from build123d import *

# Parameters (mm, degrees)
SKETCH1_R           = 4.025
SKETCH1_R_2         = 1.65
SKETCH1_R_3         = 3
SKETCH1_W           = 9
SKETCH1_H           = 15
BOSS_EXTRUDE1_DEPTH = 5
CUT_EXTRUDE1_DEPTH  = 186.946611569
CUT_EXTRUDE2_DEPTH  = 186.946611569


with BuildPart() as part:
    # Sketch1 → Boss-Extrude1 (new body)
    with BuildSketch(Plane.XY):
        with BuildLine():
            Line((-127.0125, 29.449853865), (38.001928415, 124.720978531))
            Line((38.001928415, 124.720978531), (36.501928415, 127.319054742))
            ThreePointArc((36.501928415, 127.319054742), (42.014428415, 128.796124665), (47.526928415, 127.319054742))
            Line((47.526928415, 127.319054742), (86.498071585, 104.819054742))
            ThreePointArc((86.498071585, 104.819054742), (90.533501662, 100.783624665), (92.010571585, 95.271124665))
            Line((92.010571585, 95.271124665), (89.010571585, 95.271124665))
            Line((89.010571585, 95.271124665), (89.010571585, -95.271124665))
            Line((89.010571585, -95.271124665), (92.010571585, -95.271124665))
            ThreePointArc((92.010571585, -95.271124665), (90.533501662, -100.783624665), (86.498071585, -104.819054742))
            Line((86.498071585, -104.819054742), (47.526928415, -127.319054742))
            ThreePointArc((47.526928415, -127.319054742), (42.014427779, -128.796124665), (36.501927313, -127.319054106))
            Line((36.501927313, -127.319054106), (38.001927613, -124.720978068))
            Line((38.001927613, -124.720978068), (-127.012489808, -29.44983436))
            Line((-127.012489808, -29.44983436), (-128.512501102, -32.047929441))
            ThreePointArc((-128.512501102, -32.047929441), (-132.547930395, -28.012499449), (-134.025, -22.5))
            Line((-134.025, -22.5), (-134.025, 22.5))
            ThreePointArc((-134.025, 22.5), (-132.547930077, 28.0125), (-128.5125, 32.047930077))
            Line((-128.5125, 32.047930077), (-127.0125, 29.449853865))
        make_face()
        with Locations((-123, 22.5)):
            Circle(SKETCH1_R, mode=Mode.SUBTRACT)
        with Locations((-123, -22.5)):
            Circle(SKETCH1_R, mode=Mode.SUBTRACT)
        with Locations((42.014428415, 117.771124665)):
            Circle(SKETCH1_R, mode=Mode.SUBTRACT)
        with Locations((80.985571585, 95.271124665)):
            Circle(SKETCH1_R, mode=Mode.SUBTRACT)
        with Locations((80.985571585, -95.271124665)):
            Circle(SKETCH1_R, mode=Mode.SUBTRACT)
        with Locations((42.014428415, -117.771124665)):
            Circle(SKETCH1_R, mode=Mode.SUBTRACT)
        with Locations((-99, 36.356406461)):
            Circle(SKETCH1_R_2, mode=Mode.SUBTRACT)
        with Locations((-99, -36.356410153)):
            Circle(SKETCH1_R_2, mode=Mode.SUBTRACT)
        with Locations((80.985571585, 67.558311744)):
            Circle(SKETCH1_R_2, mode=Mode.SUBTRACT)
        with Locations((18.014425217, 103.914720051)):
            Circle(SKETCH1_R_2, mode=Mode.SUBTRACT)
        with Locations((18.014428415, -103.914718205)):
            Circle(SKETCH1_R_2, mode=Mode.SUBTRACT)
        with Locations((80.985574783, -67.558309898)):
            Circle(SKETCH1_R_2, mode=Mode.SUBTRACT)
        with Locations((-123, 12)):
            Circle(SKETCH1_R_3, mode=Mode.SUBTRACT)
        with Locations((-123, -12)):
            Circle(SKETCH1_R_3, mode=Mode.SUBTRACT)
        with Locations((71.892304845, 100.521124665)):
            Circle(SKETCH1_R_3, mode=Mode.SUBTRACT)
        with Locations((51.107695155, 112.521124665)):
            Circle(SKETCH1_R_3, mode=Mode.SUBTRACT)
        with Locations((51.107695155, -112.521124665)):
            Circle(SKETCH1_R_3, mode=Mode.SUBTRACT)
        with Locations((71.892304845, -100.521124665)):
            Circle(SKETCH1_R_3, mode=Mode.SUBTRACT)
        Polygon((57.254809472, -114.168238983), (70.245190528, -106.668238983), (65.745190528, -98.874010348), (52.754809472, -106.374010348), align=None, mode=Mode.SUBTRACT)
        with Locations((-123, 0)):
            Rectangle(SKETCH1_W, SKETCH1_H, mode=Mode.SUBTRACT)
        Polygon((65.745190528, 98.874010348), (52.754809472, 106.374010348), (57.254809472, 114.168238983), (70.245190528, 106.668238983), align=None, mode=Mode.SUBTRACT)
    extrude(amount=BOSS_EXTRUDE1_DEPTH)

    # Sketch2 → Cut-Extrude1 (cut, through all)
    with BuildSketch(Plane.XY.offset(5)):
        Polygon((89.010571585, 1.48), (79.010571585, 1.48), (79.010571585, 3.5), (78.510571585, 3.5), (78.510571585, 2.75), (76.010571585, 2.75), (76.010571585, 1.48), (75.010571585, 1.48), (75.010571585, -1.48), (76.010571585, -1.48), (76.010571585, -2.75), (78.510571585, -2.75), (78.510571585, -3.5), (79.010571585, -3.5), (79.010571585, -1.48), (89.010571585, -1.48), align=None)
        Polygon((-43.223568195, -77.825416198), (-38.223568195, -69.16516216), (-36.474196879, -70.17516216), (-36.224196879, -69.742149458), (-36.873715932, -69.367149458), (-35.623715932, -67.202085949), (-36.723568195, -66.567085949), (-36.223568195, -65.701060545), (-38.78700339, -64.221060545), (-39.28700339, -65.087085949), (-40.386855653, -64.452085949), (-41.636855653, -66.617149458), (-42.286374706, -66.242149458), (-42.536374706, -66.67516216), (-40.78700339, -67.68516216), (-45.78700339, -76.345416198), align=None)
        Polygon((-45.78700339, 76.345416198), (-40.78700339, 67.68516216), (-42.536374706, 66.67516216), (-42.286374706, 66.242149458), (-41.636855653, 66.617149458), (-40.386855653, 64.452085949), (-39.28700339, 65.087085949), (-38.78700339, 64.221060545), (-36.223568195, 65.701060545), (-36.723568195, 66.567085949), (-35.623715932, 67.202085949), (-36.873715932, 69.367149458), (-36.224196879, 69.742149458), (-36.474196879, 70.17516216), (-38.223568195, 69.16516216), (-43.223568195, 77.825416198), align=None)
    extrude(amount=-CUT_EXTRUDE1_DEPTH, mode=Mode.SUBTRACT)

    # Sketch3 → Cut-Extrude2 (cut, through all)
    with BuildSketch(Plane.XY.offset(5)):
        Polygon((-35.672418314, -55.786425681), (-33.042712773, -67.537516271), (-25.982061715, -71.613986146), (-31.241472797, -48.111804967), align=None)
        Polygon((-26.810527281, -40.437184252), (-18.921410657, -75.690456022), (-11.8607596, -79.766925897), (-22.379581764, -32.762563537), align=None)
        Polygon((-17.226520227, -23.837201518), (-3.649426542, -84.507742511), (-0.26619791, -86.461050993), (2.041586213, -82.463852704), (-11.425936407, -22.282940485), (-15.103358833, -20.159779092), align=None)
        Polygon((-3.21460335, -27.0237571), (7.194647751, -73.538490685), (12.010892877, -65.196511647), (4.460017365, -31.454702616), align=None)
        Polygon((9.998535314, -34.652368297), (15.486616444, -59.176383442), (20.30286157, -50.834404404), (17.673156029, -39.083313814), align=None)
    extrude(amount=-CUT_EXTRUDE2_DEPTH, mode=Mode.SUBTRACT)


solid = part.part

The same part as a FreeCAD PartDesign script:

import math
import FreeCAD as App
import Part
import Sketcher

V = App.Vector
Q = App.Units.Quantity

doc = App.newDocument("Part")
body = doc.addObject("PartDesign::Body", "Body")

# Sketch on XY plane
sketch1 = body.newObject("Sketcher::SketchObject", "Sketch")
sketch1.AttachmentSupport = (doc.getObject("XY_Plane"), [""])
sketch1.MapMode = "FlatFace"
sketch1.addGeometry([
    Part.LineSegment(V(38.001928, 124.720979, 0), V(-127.0125, 29.449854, 0)),  # 0
    Part.LineSegment(V(-127.0125, 29.449854, 0), V(-128.5125, 32.04793, 0)),  # 1
    Part.ArcOfCircle(Part.Circle(V(-123, 22.5, 0), V(0, 0, 1), 11.025), math.radians(120), math.radians(180)),  # 2
    Part.LineSegment(V(-134.025, 22.5, 0), V(-134.025, -22.5, 0)),  # 3
    Part.ArcOfCircle(Part.Circle(V(-123, -22.5, 0), V(0, 0, 1), 11.025), math.radians(180), math.radians(239.999993)),  # 4
    Part.LineSegment(V(-128.512501, -32.047929, 0), V(-127.01249, -29.449834, 0)),  # 5
    Part.LineSegment(V(-127.01249, -29.449834, 0), V(38.001928, -124.720978, 0)),  # 6
    Part.LineSegment(V(38.001928, -124.720978, 0), V(36.501927, -127.319054, 0)),  # 7
    Part.ArcOfCircle(Part.Circle(V(42.014428, -117.771125, 0), V(0, 0, 1), 11.025), math.radians(-120.000007), math.radians(-60)),  # 8
    Part.LineSegment(V(47.526928, -127.319055, 0), V(86.498072, -104.819055, 0)),  # 9
    Part.ArcOfCircle(Part.Circle(V(80.985572, -95.271125, 0), V(0, 0, 1), 11.025), math.radians(-60), math.radians(0)),  # 10
    Part.LineSegment(V(92.010572, -95.271125, 0), V(89.010572, -95.271125, 0)),  # 11
    Part.LineSegment(V(89.010572, -95.271125, 0), V(89.010572, 95.271125, 0)),  # 12
    Part.LineSegment(V(89.010572, 95.271125, 0), V(92.010572, 95.271125, 0)),  # 13
    Part.ArcOfCircle(Part.Circle(V(80.985572, 95.271125, 0), V(0, 0, 1), 11.025), math.radians(0), math.radians(60)),  # 14
    Part.LineSegment(V(86.498072, 104.819055, 0), V(47.526928, 127.319055, 0)),  # 15
    Part.ArcOfCircle(Part.Circle(V(42.014428, 117.771125, 0), V(0, 0, 1), 11.025), math.radians(60), math.radians(120)),  # 16
    Part.LineSegment(V(36.501928, 127.319055, 0), V(38.001928, 124.720979, 0)),  # 17
    Part.Circle(V(71.892305, -100.521125, 0), V(0, 0, 1), 3),  # 18
    Part.Circle(V(80.985572, -95.271125, 0), V(0, 0, 1), 4.025),  # 19
    Part.LineSegment(V(57.254809, -114.168239, 0), V(52.754809, -106.37401, 0)),  # 20
    Part.LineSegment(V(52.754809, -106.37401, 0), V(65.745191, -98.87401, 0)),  # 21
    Part.LineSegment(V(65.745191, -98.87401, 0), V(70.245191, -106.668239, 0)),  # 22
    Part.LineSegment(V(70.245191, -106.668239, 0), V(57.254809, -114.168239, 0)),  # 23
    Part.Circle(V(51.107695, -112.521125, 0), V(0, 0, 1), 3),  # 24
    Part.Circle(V(42.014428, -117.771125, 0), V(0, 0, 1), 4.025),  # 25
    Part.Circle(V(80.985575, -67.55831, 0), V(0, 0, 1), 1.65),  # 26
    Part.Circle(V(18.014428, -103.914718, 0), V(0, 0, 1), 1.65),  # 27
    Part.Circle(V(-99, -36.35641, 0), V(0, 0, 1), 1.65),  # 28
    Part.Circle(V(-123, -22.5, 0), V(0, 0, 1), 4.025),  # 29
    Part.Circle(V(-123, -12, 0), V(0, 0, 1), 3),  # 30
    Part.Circle(V(80.985572, 67.558312, 0), V(0, 0, 1), 1.65),  # 31
    Part.Circle(V(80.985572, 95.271125, 0), V(0, 0, 1), 4.025),  # 32
    Part.Circle(V(71.892305, 100.521125, 0), V(0, 0, 1), 3),  # 33
    Part.LineSegment(V(65.745191, 98.87401, 0), V(52.754809, 106.37401, 0)),  # 34
    Part.LineSegment(V(52.754809, 106.37401, 0), V(57.254809, 114.168239, 0)),  # 35
    Part.LineSegment(V(57.254809, 114.168239, 0), V(70.245191, 106.668239, 0)),  # 36
    Part.LineSegment(V(70.245191, 106.668239, 0), V(65.745191, 98.87401, 0)),  # 37
    Part.Circle(V(51.107695, 112.521125, 0), V(0, 0, 1), 3),  # 38
    Part.Circle(V(42.014428, 117.771125, 0), V(0, 0, 1), 4.025),  # 39
    Part.Circle(V(18.014425, 103.91472, 0), V(0, 0, 1), 1.65),  # 40
    Part.LineSegment(V(-127.5, -7.5, 0), V(-127.5, 7.5, 0)),  # 41
    Part.LineSegment(V(-127.5, 7.5, 0), V(-118.5, 7.5, 0)),  # 42
    Part.LineSegment(V(-118.5, 7.5, 0), V(-118.5, -7.5, 0)),  # 43
    Part.LineSegment(V(-118.5, -7.5, 0), V(-127.5, -7.5, 0)),  # 44
    Part.Circle(V(-123, 12, 0), V(0, 0, 1), 3),  # 45
    Part.Circle(V(-123, 22.5, 0), V(0, 0, 1), 4.025),  # 46
    Part.Circle(V(-99, 36.356406, 0), V(0, 0, 1), 1.65),  # 47
], False)
sketch1.addConstraint([
    Sketcher.Constraint("Coincident", 0, 2, 1, 1),
    Sketcher.Constraint("Coincident", 1, 2, 2, 1),
    Sketcher.Constraint("Coincident", 2, 2, 3, 1),
    Sketcher.Constraint("Coincident", 3, 2, 4, 1),
    Sketcher.Constraint("Coincident", 4, 2, 5, 1),
    Sketcher.Constraint("Coincident", 5, 2, 6, 1),
    Sketcher.Constraint("Coincident", 6, 2, 7, 1),
    Sketcher.Constraint("Coincident", 7, 2, 8, 1),
    Sketcher.Constraint("Coincident", 8, 2, 9, 1),
    Sketcher.Constraint("Coincident", 9, 2, 10, 1),
    Sketcher.Constraint("Coincident", 10, 2, 11, 1),
    Sketcher.Constraint("Coincident", 11, 2, 12, 1),
    Sketcher.Constraint("Coincident", 12, 2, 13, 1),
    Sketcher.Constraint("Coincident", 13, 2, 14, 1),
    Sketcher.Constraint("Coincident", 14, 2, 15, 1),
    Sketcher.Constraint("Coincident", 15, 2, 16, 1),
    Sketcher.Constraint("Coincident", 16, 2, 17, 1),
    Sketcher.Constraint("Coincident", 17, 2, 0, 1),
    Sketcher.Constraint("Coincident", 20, 2, 21, 1),
    Sketcher.Constraint("Coincident", 21, 2, 22, 1),
    Sketcher.Constraint("Coincident", 22, 2, 23, 1),
    Sketcher.Constraint("Coincident", 23, 2, 20, 1),
    Sketcher.Constraint("Coincident", 34, 2, 35, 1),
    Sketcher.Constraint("Coincident", 35, 2, 36, 1),
    Sketcher.Constraint("Coincident", 36, 2, 37, 1),
    Sketcher.Constraint("Coincident", 37, 2, 34, 1),
    Sketcher.Constraint("Coincident", 41, 2, 42, 1),
    Sketcher.Constraint("Coincident", 42, 2, 43, 1),
    Sketcher.Constraint("Coincident", 43, 2, 44, 1),
    Sketcher.Constraint("Coincident", 44, 2, 41, 1),
    Sketcher.Constraint("Vertical", 3),
    Sketcher.Constraint("Horizontal", 11),
    Sketcher.Constraint("Vertical", 12),
    Sketcher.Constraint("Horizontal", 13),
    Sketcher.Constraint("Vertical", 41),
    Sketcher.Constraint("Horizontal", 42),
    Sketcher.Constraint("Vertical", 43),
    Sketcher.Constraint("Horizontal", 44),
    Sketcher.Constraint("Coincident", 19, 3, 10, 3),
    Sketcher.Constraint("Coincident", 25, 3, 8, 3),
    Sketcher.Constraint("Coincident", 29, 3, 4, 3),
    Sketcher.Constraint("Coincident", 32, 3, 14, 3),
    Sketcher.Constraint("Coincident", 39, 3, 16, 3),
    Sketcher.Constraint("Coincident", 46, 3, 2, 3),
    Sketcher.Constraint("Diameter", 18, 6.0),
    Sketcher.Constraint("Diameter", 24, 6.0),
    Sketcher.Constraint("Diameter", 30, 6.0),
    Sketcher.Constraint("Diameter", 33, 6.0),
    Sketcher.Constraint("Diameter", 38, 6.0),
    Sketcher.Constraint("Diameter", 45, 6.0),
    Sketcher.Constraint("Diameter", 26, 3.3),
    Sketcher.Constraint("Diameter", 27, 3.3),
    Sketcher.Constraint("Diameter", 28, 3.3),
    Sketcher.Constraint("Diameter", 31, 3.3),
    Sketcher.Constraint("Diameter", 40, 3.3),
    Sketcher.Constraint("Diameter", 47, 3.3),
    Sketcher.Constraint("Diameter", 19, 8.05),
    Sketcher.Constraint("Diameter", 25, 8.05),
    Sketcher.Constraint("Diameter", 29, 8.05),
    Sketcher.Constraint("Diameter", 32, 8.05),
    Sketcher.Constraint("Diameter", 39, 8.05),
    Sketcher.Constraint("Diameter", 46, 8.05),
    Sketcher.Constraint("DistanceX", 11, 2, 11, 1, 3.0),
    Sketcher.Constraint("DistanceX", 13, 1, 13, 2, 3.0),
    Sketcher.Constraint("DistanceX", 42, 1, 42, 2, 9.0),
    Sketcher.Constraint("DistanceY", 3, 2, 3, 1, 45.0),
    Sketcher.Constraint("DistanceY", 41, 1, 41, 2, 15.0),
    Sketcher.Constraint("Distance", 1, 3.0),
    Sketcher.Constraint("Distance", 7, 3.0),
    Sketcher.Constraint("Distance", 9, 45.0),
    Sketcher.Constraint("Distance", 15, 45.0),
    Sketcher.Constraint("Distance", 17, 3.0),
    Sketcher.Constraint("Distance", 20, 9.0),
    Sketcher.Constraint("Distance", 21, 15.0),
    Sketcher.Constraint("Distance", 22, 9.0),
    Sketcher.Constraint("Distance", 23, 15.0),
    Sketcher.Constraint("Distance", 34, 15.0),
    Sketcher.Constraint("Distance", 35, 9.0),
    Sketcher.Constraint("Distance", 36, 15.0),
    Sketcher.Constraint("Distance", 37, 9.0),
    Sketcher.Constraint("DistanceX", 2, 3, -1, 1, 123.0),
    Sketcher.Constraint("DistanceX", 4, 3, -1, 1, 123.0),
    Sketcher.Constraint("DistanceX", 28, 3, -1, 1, 99.0),
    Sketcher.Constraint("DistanceX", 30, 3, -1, 1, 123.0),
    Sketcher.Constraint("DistanceY", 30, 3, -1, 1, 12.0),
    Sketcher.Constraint("DistanceX", 45, 3, -1, 1, 123.0),
    Sketcher.Constraint("DistanceY", -1, 1, 45, 3, 12.0),
    Sketcher.Constraint("DistanceX", 47, 3, -1, 1, 99.0),
    Sketcher.Constraint("Radius", 2, 11.025),
    Sketcher.Constraint("Radius", 8, 11.025),
    Sketcher.Constraint("Radius", 10, 11.025),
    Sketcher.Constraint("Radius", 14, 11.025),
    Sketcher.Constraint("Radius", 16, 11.025),
    Sketcher.Constraint("DistanceY", 4, 3, 2, 3, 45.0),
    Sketcher.Constraint("DistanceY", 24, 3, 18, 3, 12.0),
    Sketcher.Constraint("DistanceX", 27, 3, 8, 3, 24.0),
    Sketcher.Constraint("DistanceY", 33, 3, 38, 3, 12.0),
    Sketcher.Constraint("DistanceY", 41, 2, 46, 3, 15.0),
    Sketcher.Constraint("DistanceY", 41, 2, 2, 2, 15.0),
    Sketcher.Constraint("DistanceY", -1, 1, 2, 3, 22.5),
    Sketcher.Constraint("DistanceX", 41, 2, -1, 1, 127.5),
    Sketcher.Constraint("DistanceY", 8, 3, 10, 3, 22.5),
    Sketcher.Constraint("DistanceY", 14, 3, 16, 3, 22.5),
    Sketcher.Constraint("DistanceX", 1, 2, 0, 2, 1.5),
    Sketcher.Constraint("DistanceX", 7, 2, 6, 2, 1.5),
    Sketcher.Constraint("DistanceX", 16, 2, 17, 2, 1.5),
    Sketcher.Constraint("DistanceY", 20, 2, 21, 2, 7.5),
    Sketcher.Constraint("DistanceX", 21, 2, 22, 2, 4.5),
    Sketcher.Constraint("DistanceX", 34, 2, 35, 2, 4.5),
    Sketcher.Constraint("DistanceY", 36, 2, 35, 2, 7.5),
    Sketcher.Constraint("DistanceY", 18, 3, 10, 3, 5.25),
    Sketcher.Constraint("DistanceY", 32, 3, 33, 3, 5.25),
    Sketcher.Constraint("DistanceY", 18, 3, 10, 2, 5.25),
    Sketcher.Constraint("DistanceY", 12, 2, 33, 3, 5.25),
    Sketcher.Constraint("DistanceX", 6, 2, 8, 2, 9.525001),
    Sketcher.Constraint("DistanceX", 31, 3, 12, 2, 8.025),
    Sketcher.Constraint("DistanceX", 16, 2, 15, 2, 11.025),
    Sketcher.Constraint("DistanceY", 12, 1, 12, 2, 190.542249),
    Sketcher.Constraint("DistanceX", 0, 2, -1, 1, 127.0125),
    Sketcher.Constraint("DistanceX", 4, 2, -1, 1, 128.512501),
    Sketcher.Constraint("DistanceX", 6, 2, 25, 3, 4.012501),
    Sketcher.Constraint("DistanceX", 10, 3, 9, 2, 5.5125),
    Sketcher.Constraint("DistanceX", 14, 2, 12, 2, 2.5125),
    Sketcher.Constraint("DistanceX", 39, 3, 15, 2, 5.5125),
    Sketcher.Constraint("Distance", 0, 190.542249),
    Sketcher.Constraint("Distance", 5, 3.000022),
    Sketcher.Constraint("Distance", 6, 190.542249),
    Sketcher.Constraint("DistanceX", -1, 1, 8, 3, 42.014428),
    Sketcher.Constraint("DistanceY", 26, 3, -1, 1, 67.55831),
    Sketcher.Constraint("DistanceY", 27, 3, -1, 1, 103.914718),
    Sketcher.Constraint("DistanceY", 28, 3, -1, 1, 36.35641),
    Sketcher.Constraint("DistanceY", -1, 1, 31, 3, 67.558312),
    Sketcher.Constraint("DistanceY", -1, 1, 40, 3, 103.91472),
    Sketcher.Constraint("DistanceX", -1, 1, 20, 2, 52.754809),
    Sketcher.Constraint("DistanceY", 20, 2, -1, 1, 106.37401),
    Sketcher.Constraint("DistanceX", -1, 1, 34, 2, 52.754809),
    Sketcher.Constraint("DistanceY", -1, 1, 34, 2, 106.37401),
    Sketcher.Constraint("DistanceX", 24, 3, 18, 3, 20.78461),
    Sketcher.Constraint("DistanceX", 18, 3, 26, 3, 9.09327),
    Sketcher.Constraint("DistanceX", 33, 3, 26, 3, 9.09327),
    Sketcher.Constraint("DistanceX", 38, 3, 33, 3, 20.78461),
    Sketcher.Constraint("DistanceX", 40, 3, 38, 3, 33.09327),
    Sketcher.Constraint("DistanceX", -1, 1, 18, 3, 71.892305),
    Sketcher.Constraint("DistanceY", -1, 1, 47, 3, 36.356406),
])
pad1 = body.newObject("PartDesign::Pad", "Pad")
pad1.Profile = sketch1
pad1.Length = 5

# Sketch on XY plane
sketch2 = body.newObject("Sketcher::SketchObject", "Sketch001")
sketch2.AttachmentSupport = (doc.getObject("XY_Plane"), [""])
sketch2.MapMode = "FlatFace"
sketch2.AttachmentOffset = App.Placement(V(0, 0, 5), App.Rotation())
sketch2.addGeometry([
    Part.LineSegment(V(89, 1.5, 0), V(79, 1.5, 0)),  # 0
    Part.LineSegment(V(79, 1.5, 0), V(79, 3.5, 0)),  # 1
    Part.LineSegment(V(79, 3.5, 0), V(78.5, 3.5, 0)),  # 2
    Part.LineSegment(V(78.5, 3.5, 0), V(78.5, 2.8, 0)),  # 3
    Part.LineSegment(V(78.5, 2.8, 0), V(76, 2.8, 0)),  # 4
    Part.LineSegment(V(76, 2.8, 0), V(76, 1.5, 0)),  # 5
    Part.LineSegment(V(76, 1.5, 0), V(75, 1.5, 0)),  # 6
    Part.LineSegment(V(75, 1.5, 0), V(75, -1.5, 0)),  # 7
    Part.LineSegment(V(75, -1.5, 0), V(76, -1.5, 0)),  # 8
    Part.LineSegment(V(76, -1.5, 0), V(76, -2.8, 0)),  # 9
    Part.LineSegment(V(76, -2.8, 0), V(78.5, -2.8, 0)),  # 10
    Part.LineSegment(V(78.5, -2.8, 0), V(78.5, -3.5, 0)),  # 11
    Part.LineSegment(V(78.5, -3.5, 0), V(79, -3.5, 0)),  # 12
    Part.LineSegment(V(79, -3.5, 0), V(79, -1.5, 0)),  # 13
    Part.LineSegment(V(79, -1.5, 0), V(89, -1.5, 0)),  # 14
    Part.LineSegment(V(89, -1.5, 0), V(89, 1.5, 0)),  # 15
    Part.LineSegment(V(-43.2, -77.8, 0), V(-38.2, -69.2, 0)),  # 16
    Part.LineSegment(V(-38.2, -69.2, 0), V(-36.5, -70.2, 0)),  # 17
    Part.LineSegment(V(-36.5, -70.2, 0), V(-36.2, -69.7, 0)),  # 18
    Part.LineSegment(V(-36.2, -69.7, 0), V(-36.9, -69.4, 0)),  # 19
    Part.LineSegment(V(-36.9, -69.4, 0), V(-35.6, -67.2, 0)),  # 20
    Part.LineSegment(V(-35.6, -67.2, 0), V(-36.7, -66.6, 0)),  # 21
    Part.LineSegment(V(-36.7, -66.6, 0), V(-36.2, -65.7, 0)),  # 22
    Part.LineSegment(V(-36.2, -65.7, 0), V(-38.8, -64.2, 0)),  # 23
    Part.LineSegment(V(-38.8, -64.2, 0), V(-39.3, -65.1, 0)),  # 24
    Part.LineSegment(V(-39.3, -65.1, 0), V(-40.4, -64.5, 0)),  # 25
    Part.LineSegment(V(-40.4, -64.5, 0), V(-41.6, -66.6, 0)),  # 26
    Part.LineSegment(V(-41.6, -66.6, 0), V(-42.3, -66.2, 0)),  # 27
    Part.LineSegment(V(-42.3, -66.2, 0), V(-42.5, -66.7, 0)),  # 28
    Part.LineSegment(V(-42.5, -66.7, 0), V(-40.8, -67.7, 0)),  # 29
    Part.LineSegment(V(-40.8, -67.7, 0), V(-45.8, -76.3, 0)),  # 30
    Part.LineSegment(V(-45.8, -76.3, 0), V(-43.2, -77.8, 0)),  # 31
    Part.LineSegment(V(-45.8, 76.3, 0), V(-40.8, 67.7, 0)),  # 32
    Part.LineSegment(V(-40.8, 67.7, 0), V(-42.5, 66.7, 0)),  # 33
    Part.LineSegment(V(-42.5, 66.7, 0), V(-42.3, 66.2, 0)),  # 34
    Part.LineSegment(V(-42.3, 66.2, 0), V(-41.6, 66.6, 0)),  # 35
    Part.LineSegment(V(-41.6, 66.6, 0), V(-40.4, 64.5, 0)),  # 36
    Part.LineSegment(V(-40.4, 64.5, 0), V(-39.3, 65.1, 0)),  # 37
    Part.LineSegment(V(-39.3, 65.1, 0), V(-38.8, 64.2, 0)),  # 38
    Part.LineSegment(V(-38.8, 64.2, 0), V(-36.2, 65.7, 0)),  # 39
    Part.LineSegment(V(-36.2, 65.7, 0), V(-36.7, 66.6, 0)),  # 40
    Part.LineSegment(V(-36.7, 66.6, 0), V(-35.6, 67.2, 0)),  # 41
    Part.LineSegment(V(-35.6, 67.2, 0), V(-36.9, 69.4, 0)),  # 42
    Part.LineSegment(V(-36.9, 69.4, 0), V(-36.2, 69.7, 0)),  # 43
    Part.LineSegment(V(-36.2, 69.7, 0), V(-36.5, 70.2, 0)),  # 44
    Part.LineSegment(V(-36.5, 70.2, 0), V(-38.2, 69.2, 0)),  # 45
    Part.LineSegment(V(-38.2, 69.2, 0), V(-43.2, 77.8, 0)),  # 46
    Part.LineSegment(V(-43.2, 77.8, 0), V(-45.8, 76.3, 0)),  # 47
], False)
sketch2.addConstraint([
    Sketcher.Constraint("Coincident", 0, 2, 1, 1),
    Sketcher.Constraint("Coincident", 1, 2, 2, 1),
    Sketcher.Constraint("Coincident", 2, 2, 3, 1),
    Sketcher.Constraint("Coincident", 3, 2, 4, 1),
    Sketcher.Constraint("Coincident", 4, 2, 5, 1),
    Sketcher.Constraint("Coincident", 5, 2, 6, 1),
    Sketcher.Constraint("Coincident", 6, 2, 7, 1),
    Sketcher.Constraint("Coincident", 7, 2, 8, 1),
    Sketcher.Constraint("Coincident", 8, 2, 9, 1),
    Sketcher.Constraint("Coincident", 9, 2, 10, 1),
    Sketcher.Constraint("Coincident", 10, 2, 11, 1),
    Sketcher.Constraint("Coincident", 11, 2, 12, 1),
    Sketcher.Constraint("Coincident", 12, 2, 13, 1),
    Sketcher.Constraint("Coincident", 13, 2, 14, 1),
    Sketcher.Constraint("Coincident", 14, 2, 15, 1),
    Sketcher.Constraint("Coincident", 15, 2, 0, 1),
    Sketcher.Constraint("Coincident", 16, 2, 17, 1),
    Sketcher.Constraint("Coincident", 17, 2, 18, 1),
    Sketcher.Constraint("Coincident", 18, 2, 19, 1),
    Sketcher.Constraint("Coincident", 19, 2, 20, 1),
    Sketcher.Constraint("Coincident", 20, 2, 21, 1),
    Sketcher.Constraint("Coincident", 21, 2, 22, 1),
    Sketcher.Constraint("Coincident", 22, 2, 23, 1),
    Sketcher.Constraint("Coincident", 23, 2, 24, 1),
    Sketcher.Constraint("Coincident", 24, 2, 25, 1),
    Sketcher.Constraint("Coincident", 25, 2, 26, 1),
    Sketcher.Constraint("Coincident", 26, 2, 27, 1),
    Sketcher.Constraint("Coincident", 27, 2, 28, 1),
    Sketcher.Constraint("Coincident", 28, 2, 29, 1),
    Sketcher.Constraint("Coincident", 29, 2, 30, 1),
    Sketcher.Constraint("Coincident", 30, 2, 31, 1),
    Sketcher.Constraint("Coincident", 31, 2, 16, 1),
    Sketcher.Constraint("Coincident", 32, 2, 33, 1),
    Sketcher.Constraint("Coincident", 33, 2, 34, 1),
    Sketcher.Constraint("Coincident", 34, 2, 35, 1),
    Sketcher.Constraint("Coincident", 35, 2, 36, 1),
    Sketcher.Constraint("Coincident", 36, 2, 37, 1),
    Sketcher.Constraint("Coincident", 37, 2, 38, 1),
    Sketcher.Constraint("Coincident", 38, 2, 39, 1),
    Sketcher.Constraint("Coincident", 39, 2, 40, 1),
    Sketcher.Constraint("Coincident", 40, 2, 41, 1),
    Sketcher.Constraint("Coincident", 41, 2, 42, 1),
    Sketcher.Constraint("Coincident", 42, 2, 43, 1),
    Sketcher.Constraint("Coincident", 43, 2, 44, 1),
    Sketcher.Constraint("Coincident", 44, 2, 45, 1),
    Sketcher.Constraint("Coincident", 45, 2, 46, 1),
    Sketcher.Constraint("Coincident", 46, 2, 47, 1),
    Sketcher.Constraint("Coincident", 47, 2, 32, 1),
    Sketcher.Constraint("Horizontal", 0),
    Sketcher.Constraint("Vertical", 1),
    Sketcher.Constraint("Horizontal", 2),
    Sketcher.Constraint("Vertical", 3),
    Sketcher.Constraint("Horizontal", 4),
    Sketcher.Constraint("Vertical", 5),
    Sketcher.Constraint("Horizontal", 6),
    Sketcher.Constraint("Vertical", 7),
    Sketcher.Constraint("Horizontal", 8),
    Sketcher.Constraint("Vertical", 9),
    Sketcher.Constraint("Horizontal", 10),
    Sketcher.Constraint("Vertical", 11),
    Sketcher.Constraint("Horizontal", 12),
    Sketcher.Constraint("Vertical", 13),
    Sketcher.Constraint("Horizontal", 14),
    Sketcher.Constraint("Vertical", 15),
    Sketcher.Constraint("Symmetric", 5, 2, 8, 2, -1),
    Sketcher.Constraint("Symmetric", 3, 2, 10, 2, -1),
    Sketcher.Constraint("Symmetric", 1, 2, 12, 2, -1),
    Sketcher.Constraint("Symmetric", 29, 2, 32, 2, -1),
    Sketcher.Constraint("Symmetric", 28, 2, 33, 2, -1),
    Sketcher.Constraint("Symmetric", 27, 2, 34, 2, -1),
    Sketcher.Constraint("Symmetric", 26, 2, 35, 2, -1),
    Sketcher.Constraint("Symmetric", 25, 2, 36, 2, -1),
    Sketcher.Constraint("Symmetric", 24, 2, 37, 2, -1),
    Sketcher.Constraint("Symmetric", 23, 2, 38, 2, -1),
    Sketcher.Constraint("Symmetric", 22, 2, 39, 2, -1),
    Sketcher.Constraint("Symmetric", 21, 2, 40, 2, -1),
    Sketcher.Constraint("Symmetric", 20, 2, 41, 2, -1),
    Sketcher.Constraint("Symmetric", 19, 2, 42, 2, -1),
    Sketcher.Constraint("Symmetric", 18, 2, 43, 2, -1),
    Sketcher.Constraint("Symmetric", 17, 2, 44, 2, -1),
    Sketcher.Constraint("Symmetric", 16, 2, 45, 2, -1),
    Sketcher.Constraint("Symmetric", 31, 2, 46, 2, -1),
    Sketcher.Constraint("Symmetric", 30, 2, 47, 2, -1),
    Sketcher.Constraint("Perpendicular", 16, 17),
    Sketcher.Constraint("Perpendicular", 17, 18),
    Sketcher.Constraint("Perpendicular", 18, 19),
    Sketcher.Constraint("Perpendicular", 19, 20),
    Sketcher.Constraint("Perpendicular", 20, 21),
    Sketcher.Constraint("Perpendicular", 21, 22),
    Sketcher.Constraint("Perpendicular", 22, 23),
    Sketcher.Constraint("Perpendicular", 23, 24),
    Sketcher.Constraint("Perpendicular", 24, 25),
    Sketcher.Constraint("Perpendicular", 25, 26),
    Sketcher.Constraint("Perpendicular", 26, 27),
    Sketcher.Constraint("Perpendicular", 27, 28),
    Sketcher.Constraint("Perpendicular", 28, 29),
    Sketcher.Constraint("Perpendicular", 29, 30),
    Sketcher.Constraint("Perpendicular", 30, 31),
    Sketcher.Constraint("Horizontal", 0, 2, 5, 2),
    Sketcher.Constraint("Horizontal", 8, 2, 13, 2),
    Sketcher.Constraint("Equal", 22, 24),
    Sketcher.Constraint("Equal", 21, 25),
    Sketcher.Constraint("Equal", 20, 26),
    Sketcher.Constraint("Equal", 19, 27),
    Sketcher.Constraint("Equal", 18, 28),
    Sketcher.Constraint("Equal", 17, 29),
    Sketcher.Constraint("Equal", 23, 31),
    Sketcher.Constraint("DistanceX", 0, 2, 0, 1, 10.0),
    Sketcher.Constraint("DistanceX", 6, 2, 6, 1, 1.0),
    Sketcher.Constraint("Angle", 16, Q("60 deg")),
    Sketcher.Constraint("Distance", 16, 10.0),
    Sketcher.Constraint("Distance", 22, 1.0),
    Sketcher.Constraint("DistanceX", 2, 2, 2, 1, 0.5),
    Sketcher.Constraint("DistanceX", 4, 2, 4, 1, 2.5),
    Sketcher.Constraint("DistanceX", 16, 2, 22, 2, 2.0),
    Sketcher.Constraint("Distance", 18, 0.5),
    Sketcher.Constraint("DistanceY", 1, 1, 1, 2, 2.02),
    Sketcher.Constraint("DistanceY", 3, 2, 3, 1, 0.75),
    Sketcher.Constraint("DistanceY", 7, 2, 7, 1, 2.96),
    Sketcher.Constraint("Distance", 17, 2.02),
    Sketcher.Constraint("Distance", 19, 0.75),
    Sketcher.Constraint("Distance", 23, 2.96),
    Sketcher.Constraint("DistanceX", -1, 1, 0, 2, 79.010572),
    Sketcher.Constraint("DistanceX", 16, 2, -1, 1, 38.223568),
    Sketcher.Constraint("DistanceY", 18, 2, -1, 1, 69.742149),
])
pocket1 = body.newObject("PartDesign::Pocket", "Pocket")
pocket1.Profile = sketch2
pocket1.Type = "ThroughAll"

# Sketch on XY plane
sketch3 = body.newObject("Sketcher::SketchObject", "Sketch002")
sketch3.AttachmentSupport = (doc.getObject("XY_Plane"), [""])
sketch3.MapMode = "FlatFace"
sketch3.AttachmentOffset = App.Placement(V(0, 0, 5), App.Rotation())
sketch3.addGeometry([
    Part.LineSegment(V(-35.7, -55.8, 0), V(-33, -67.5, 0)),  # 0
    Part.LineSegment(V(-33, -67.5, 0), V(-26, -71.6, 0)),  # 1
    Part.LineSegment(V(-26, -71.6, 0), V(-31.2, -48.1, 0)),  # 2
    Part.LineSegment(V(-31.2, -48.1, 0), V(-35.7, -55.8, 0)),  # 3
    Part.LineSegment(V(-26.8, -40.4, 0), V(-18.9, -75.7, 0)),  # 4
    Part.LineSegment(V(-18.9, -75.7, 0), V(-11.9, -79.8, 0)),  # 5
    Part.LineSegment(V(-11.9, -79.8, 0), V(-22.4, -32.8, 0)),  # 6
    Part.LineSegment(V(-22.4, -32.8, 0), V(-26.8, -40.4, 0)),  # 7
    Part.LineSegment(V(-17.2, -23.8, 0), V(-3.6, -84.5, 0)),  # 8
    Part.LineSegment(V(-3.6, -84.5, 0), V(-0.3, -86.5, 0)),  # 9
    Part.LineSegment(V(-0.3, -86.5, 0), V(2, -82.5, 0)),  # 10
    Part.LineSegment(V(2, -82.5, 0), V(-11.4, -22.3, 0)),  # 11
    Part.LineSegment(V(-11.4, -22.3, 0), V(-15.1, -20.2, 0)),  # 12
    Part.LineSegment(V(-15.1, -20.2, 0), V(-17.2, -23.8, 0)),  # 13
    Part.LineSegment(V(-3.2, -27, 0), V(7.2, -73.5, 0)),  # 14
    Part.LineSegment(V(7.2, -73.5, 0), V(12, -65.2, 0)),  # 15
    Part.LineSegment(V(12, -65.2, 0), V(4.5, -31.5, 0)),  # 16
    Part.LineSegment(V(4.5, -31.5, 0), V(-3.2, -27, 0)),  # 17
    Part.LineSegment(V(10, -34.7, 0), V(15.5, -59.2, 0)),  # 18
    Part.LineSegment(V(15.5, -59.2, 0), V(20.3, -50.8, 0)),  # 19
    Part.LineSegment(V(20.3, -50.8, 0), V(17.7, -39.1, 0)),  # 20
    Part.LineSegment(V(17.7, -39.1, 0), V(10, -34.7, 0)),  # 21
], False)
sketch3.addConstraint([
    Sketcher.Constraint("Coincident", 0, 2, 1, 1),
    Sketcher.Constraint("Coincident", 1, 2, 2, 1),
    Sketcher.Constraint("Coincident", 2, 2, 3, 1),
    Sketcher.Constraint("Coincident", 3, 2, 0, 1),
    Sketcher.Constraint("Coincident", 4, 2, 5, 1),
    Sketcher.Constraint("Coincident", 5, 2, 6, 1),
    Sketcher.Constraint("Coincident", 6, 2, 7, 1),
    Sketcher.Constraint("Coincident", 7, 2, 4, 1),
    Sketcher.Constraint("Coincident", 8, 2, 9, 1),
    Sketcher.Constraint("Coincident", 9, 2, 10, 1),
    Sketcher.Constraint("Coincident", 10, 2, 11, 1),
    Sketcher.Constraint("Coincident", 11, 2, 12, 1),
    Sketcher.Constraint("Coincident", 12, 2, 13, 1),
    Sketcher.Constraint("Coincident", 13, 2, 8, 1),
    Sketcher.Constraint("Coincident", 14, 2, 15, 1),
    Sketcher.Constraint("Coincident", 15, 2, 16, 1),
    Sketcher.Constraint("Coincident", 16, 2, 17, 1),
    Sketcher.Constraint("Coincident", 17, 2, 14, 1),
    Sketcher.Constraint("Coincident", 18, 2, 19, 1),
    Sketcher.Constraint("Coincident", 19, 2, 20, 1),
    Sketcher.Constraint("Coincident", 20, 2, 21, 1),
    Sketcher.Constraint("Coincident", 21, 2, 18, 1),
    Sketcher.Constraint("Parallel", 0, 2),
    Sketcher.Constraint("Perpendicular", 1, 3),
    Sketcher.Constraint("Parallel", 2, 4),
    Sketcher.Constraint("Perpendicular", 3, 5),
    Sketcher.Constraint("Parallel", 4, 6),
    Sketcher.Constraint("Perpendicular", 5, 7),
    Sketcher.Constraint("Parallel", 6, 8),
    Sketcher.Constraint("Perpendicular", 7, 9),
    Sketcher.Constraint("Perpendicular", 9, 10),
    Sketcher.Constraint("Parallel", 8, 11),
    Sketcher.Constraint("Perpendicular", 10, 12),
    Sketcher.Constraint("Perpendicular", 12, 13),
    Sketcher.Constraint("Parallel", 11, 14),
    Sketcher.Constraint("Parallel", 13, 15),
    Sketcher.Constraint("Parallel", 14, 16),
    Sketcher.Constraint("Perpendicular", 15, 17),
    Sketcher.Constraint("Parallel", 16, 18),
    Sketcher.Constraint("Perpendicular", 17, 19),
    Sketcher.Constraint("Parallel", 18, 20),
    Sketcher.Constraint("Perpendicular", 19, 21),
    Sketcher.Constraint("Equal", 1, 5),
    Sketcher.Constraint("Equal", 12, 13),
    Sketcher.Constraint("Equal", 7, 17),
    Sketcher.Constraint("Equal", 15, 19),
    Sketcher.Constraint("Equal", 0, 20),
    Sketcher.Constraint("Angle", 1, Q("-30.000007 deg")),
    Sketcher.Constraint("DistanceY", 13, 2, -1, 1, 23.837202),
    Sketcher.Constraint("DistanceY", 5, 2, 3, 2, 23.9805),
    Sketcher.Constraint("DistanceY", 1, 2, 7, 2, 31.176802),
    Sketcher.Constraint("DistanceY", 9, 2, 10, 2, 3.997198),
    Sketcher.Constraint("DistanceY", 16, 2, 13, 2, 7.617501),
    Sketcher.Constraint("DistanceX", 6, 2, 16, 2, 26.839599),
    Sketcher.Constraint("DistanceX", 16, 2, 18, 2, 11.026599),
    Sketcher.Constraint("DistanceY", 19, 2, 16, 2, 19.379702),
    Sketcher.Constraint("Distance", 0, 12.041739),
    Sketcher.Constraint("Distance", 1, 8.152938),
    Sketcher.Constraint("Distance", 2, 24.083478),
    Sketcher.Constraint("Distance", 8, 62.171151),
    Sketcher.Constraint("Distance", 11, 61.669412),
    Sketcher.Constraint("Distance", 16, 34.576371),
    Sketcher.Constraint("DistanceX", 1, 2, -1, 1, 25.982062),
    Sketcher.Constraint("DistanceX", 4, 2, -1, 1, 18.921411),
    Sketcher.Constraint("DistanceX", 12, 2, -1, 1, 15.103359),
    Sketcher.Constraint("DistanceY", 6, 2, 16, 2, 1.307861),
])
pocket2 = body.newObject("PartDesign::Pocket", "Pocket001")
pocket2.Profile = sketch3
pocket2.Type = "ThroughAll"

doc.recompute()
